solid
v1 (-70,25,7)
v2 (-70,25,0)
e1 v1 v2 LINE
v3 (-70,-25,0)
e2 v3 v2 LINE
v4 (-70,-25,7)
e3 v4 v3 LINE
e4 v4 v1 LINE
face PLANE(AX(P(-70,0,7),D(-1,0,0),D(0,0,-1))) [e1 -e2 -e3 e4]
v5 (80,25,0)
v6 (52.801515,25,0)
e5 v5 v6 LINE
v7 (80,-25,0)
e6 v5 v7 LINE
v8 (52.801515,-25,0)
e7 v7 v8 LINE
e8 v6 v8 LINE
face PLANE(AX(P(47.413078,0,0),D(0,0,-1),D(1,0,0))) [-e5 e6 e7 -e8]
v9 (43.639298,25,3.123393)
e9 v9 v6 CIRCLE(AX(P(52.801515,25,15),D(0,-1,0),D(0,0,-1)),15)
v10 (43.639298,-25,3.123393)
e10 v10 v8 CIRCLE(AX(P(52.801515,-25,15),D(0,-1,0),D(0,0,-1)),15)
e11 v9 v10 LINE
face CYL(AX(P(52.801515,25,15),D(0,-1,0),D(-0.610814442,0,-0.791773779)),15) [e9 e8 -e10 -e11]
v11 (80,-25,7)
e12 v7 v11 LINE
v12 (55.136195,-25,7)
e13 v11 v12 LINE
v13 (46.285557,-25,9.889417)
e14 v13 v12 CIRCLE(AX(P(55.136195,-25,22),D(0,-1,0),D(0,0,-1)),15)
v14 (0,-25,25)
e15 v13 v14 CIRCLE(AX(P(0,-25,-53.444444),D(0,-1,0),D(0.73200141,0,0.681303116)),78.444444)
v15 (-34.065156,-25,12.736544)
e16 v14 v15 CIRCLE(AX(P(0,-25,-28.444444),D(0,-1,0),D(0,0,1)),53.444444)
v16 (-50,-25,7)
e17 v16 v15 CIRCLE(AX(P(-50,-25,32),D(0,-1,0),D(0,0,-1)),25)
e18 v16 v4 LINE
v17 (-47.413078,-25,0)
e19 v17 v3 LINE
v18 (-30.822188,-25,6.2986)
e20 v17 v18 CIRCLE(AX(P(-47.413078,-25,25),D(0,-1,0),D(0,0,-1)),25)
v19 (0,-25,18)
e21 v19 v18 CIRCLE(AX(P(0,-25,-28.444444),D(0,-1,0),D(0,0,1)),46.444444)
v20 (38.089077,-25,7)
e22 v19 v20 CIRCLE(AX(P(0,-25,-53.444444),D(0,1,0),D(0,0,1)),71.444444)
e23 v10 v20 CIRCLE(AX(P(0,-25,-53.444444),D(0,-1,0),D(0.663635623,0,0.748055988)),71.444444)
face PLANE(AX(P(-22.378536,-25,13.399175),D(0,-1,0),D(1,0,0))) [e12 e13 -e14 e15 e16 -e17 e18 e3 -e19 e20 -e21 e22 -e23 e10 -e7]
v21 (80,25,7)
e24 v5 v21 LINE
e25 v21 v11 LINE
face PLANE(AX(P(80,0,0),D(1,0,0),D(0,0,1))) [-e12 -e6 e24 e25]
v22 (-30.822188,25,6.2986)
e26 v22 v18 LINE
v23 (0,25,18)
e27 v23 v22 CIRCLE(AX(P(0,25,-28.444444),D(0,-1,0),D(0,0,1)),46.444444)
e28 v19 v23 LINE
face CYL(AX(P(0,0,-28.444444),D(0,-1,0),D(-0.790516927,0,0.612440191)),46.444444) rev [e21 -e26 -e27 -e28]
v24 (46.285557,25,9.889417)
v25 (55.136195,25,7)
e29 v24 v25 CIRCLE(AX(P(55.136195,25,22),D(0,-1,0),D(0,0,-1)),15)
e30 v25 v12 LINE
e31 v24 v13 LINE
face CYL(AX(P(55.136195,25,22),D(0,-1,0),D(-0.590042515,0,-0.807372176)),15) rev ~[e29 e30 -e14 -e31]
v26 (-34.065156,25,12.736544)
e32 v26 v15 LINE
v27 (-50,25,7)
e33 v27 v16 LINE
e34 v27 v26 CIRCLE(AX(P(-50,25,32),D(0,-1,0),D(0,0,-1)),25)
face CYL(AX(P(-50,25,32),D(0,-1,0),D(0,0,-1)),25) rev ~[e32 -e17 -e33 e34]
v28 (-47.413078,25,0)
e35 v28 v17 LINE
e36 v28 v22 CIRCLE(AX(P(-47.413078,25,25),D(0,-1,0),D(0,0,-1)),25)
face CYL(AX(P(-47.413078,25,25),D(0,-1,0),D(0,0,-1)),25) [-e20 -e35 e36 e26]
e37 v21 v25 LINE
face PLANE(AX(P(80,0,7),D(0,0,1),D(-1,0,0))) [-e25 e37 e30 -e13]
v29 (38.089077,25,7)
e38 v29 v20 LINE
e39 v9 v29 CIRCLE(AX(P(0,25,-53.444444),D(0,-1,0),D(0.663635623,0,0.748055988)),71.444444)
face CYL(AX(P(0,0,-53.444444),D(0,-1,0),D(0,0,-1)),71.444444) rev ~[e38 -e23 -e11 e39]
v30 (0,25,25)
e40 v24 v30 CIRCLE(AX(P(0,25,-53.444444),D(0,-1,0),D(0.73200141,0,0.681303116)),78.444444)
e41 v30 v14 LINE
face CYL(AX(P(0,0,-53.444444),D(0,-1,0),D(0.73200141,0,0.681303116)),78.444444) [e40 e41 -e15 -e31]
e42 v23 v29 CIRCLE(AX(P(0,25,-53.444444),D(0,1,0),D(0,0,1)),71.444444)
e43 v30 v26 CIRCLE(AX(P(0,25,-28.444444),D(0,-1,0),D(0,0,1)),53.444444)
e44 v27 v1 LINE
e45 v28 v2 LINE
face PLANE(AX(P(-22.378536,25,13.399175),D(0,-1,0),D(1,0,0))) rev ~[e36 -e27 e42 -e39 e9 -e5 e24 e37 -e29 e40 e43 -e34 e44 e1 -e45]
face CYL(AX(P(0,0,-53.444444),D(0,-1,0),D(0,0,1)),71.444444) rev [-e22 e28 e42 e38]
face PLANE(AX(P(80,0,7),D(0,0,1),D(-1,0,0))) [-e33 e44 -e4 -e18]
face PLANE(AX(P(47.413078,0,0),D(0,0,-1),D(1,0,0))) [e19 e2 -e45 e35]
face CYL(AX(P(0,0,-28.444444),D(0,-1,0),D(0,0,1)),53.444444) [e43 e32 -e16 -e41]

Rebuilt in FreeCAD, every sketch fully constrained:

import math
import FreeCAD as App
import Part
import Sketcher

V = App.Vector
Q = App.Units.Quantity


def edges_at(feature, points):
    """Names of the edges that pass closest to the given points."""
    edges = feature.Shape.Edges
    near = lambda p: min(range(len(edges)), key=lambda i: edges[i].distToShape(Part.Vertex(*p))[0])
    return sorted({f"Edge{near(p) + 1}" for p in points})


def add_polygon(sketch, points):
    """Adds a closed chain of lines whose ends are joined by coincident constraints."""
    first, n = sketch.GeometryCount, len(points)
    for a, b in zip(points, points[1:] + points[:1]):
        sketch.addGeometry(Part.LineSegment(App.Vector(*a, 0), App.Vector(*b, 0)), False)
    for i in range(n):
        sketch.addConstraint(Sketcher.Constraint("Coincident", first + i, 2, first + (i + 1) % n, 1))

doc = App.newDocument("Part")
body = doc.addObject("PartDesign::Body", "Body")

sketch1 = body.newObject("Sketcher::SketchObject", "Sketch")
sketch1.AttachmentSupport = (doc.getObject("XZ_Plane"), [""])
sketch1.MapMode = "FlatFace"
add_polygon(sketch1, [(-70, 0), (80, 0), (80, 7), (-70, 7)])
sketch1.addConstraint([
    Sketcher.Constraint("Horizontal", 0),
    Sketcher.Constraint("Vertical", 1),
    Sketcher.Constraint("Horizontal", 2),
    Sketcher.Constraint("Vertical", 3),
    Sketcher.Constraint("PointOnObject", 0, 2, -1),
    Sketcher.Constraint("DistanceX", 0, 1, 0, 2, Q("150 mm")),
    Sketcher.Constraint("DistanceY", 1, 1, 1, 2, Q("7 mm")),
    Sketcher.Constraint("DistanceX", -1, 1, 0, 2, Q("80 mm")),
])
pad1 = body.newObject("PartDesign::Pad", "Pad")
pad1.Profile = sketch1
pad1.Length = 50
pad1.Midplane = True

sketch2 = body.newObject("Sketcher::SketchObject", "Sketch001")
sketch2.AttachmentSupport = (doc.getObject("XZ_Plane"), [""])
sketch2.MapMode = "FlatFace"
sketch2.addGeometry([
    Part.LineSegment(V(0, 18, 0), V(0, 25, 0)),
    Part.ArcOfCircle(Part.Circle(V(0, -28, 0), V(0, 0, 1), 53), math.radians(90), math.radians(148)),
    Part.LineSegment(V(-45, 0, 0), V(-37, 0, 0)),
    Part.ArcOfCircle(Part.Circle(V(0, -28, 0), V(0, 0, 1), 46), math.radians(90), math.radians(142)),
], False)
sketch2.addConstraint([
    Sketcher.Constraint("Coincident", 0, 2, 1, 1),
    Sketcher.Constraint("Coincident", 1, 2, 2, 1),
    Sketcher.Constraint("Coincident", 2, 2, 3, 2),
    Sketcher.Constraint("Coincident", 3, 1, 0, 1),
    Sketcher.Constraint("Vertical", 0),
    Sketcher.Constraint("Horizontal", 2),
    Sketcher.Constraint("Coincident", 3, 3, 1, 3),
    Sketcher.Constraint("PointOnObject", 1, 3, -2),
    Sketcher.Constraint("PointOnObject", 0, 2, -2),
    Sketcher.Constraint("PointOnObject", 1, 2, -1),
    Sketcher.Constraint("DistanceY", 0, 1, 0, 2, Q("7 mm")),
    Sketcher.Constraint("DistanceY", -1, 1, 0, 2, Q("25 mm")),
    Sketcher.Constraint("Radius", 1, Q("53.444444 mm")),
])
pad2 = body.newObject("PartDesign::Pad", "Pad001")
pad2.Profile = sketch2
pad2.Length = 50
pad2.Midplane = True

sketch3 = body.newObject("Sketcher::SketchObject", "Sketch002")
sketch3.AttachmentSupport = (doc.getObject("XZ_Plane"), [""])
sketch3.MapMode = "FlatFace"
sketch3.addGeometry([
    Part.LineSegment(V(47, 0, 0), V(57, 0, 0)),
    Part.ArcOfCircle(Part.Circle(V(0, -53, 0), V(0, 0, 1), 78), math.radians(43), math.radians(90)),
    Part.LineSegment(V(0, 25, 0), V(0, 18, 0)),
    Part.ArcOfCircle(Part.Circle(V(0, -53, 0), V(0, 0, 1), 71), math.radians(48), math.radians(90)),
], False)
sketch3.addConstraint([
    Sketcher.Constraint("Coincident", 0, 2, 1, 1),
    Sketcher.Constraint("Coincident", 1, 2, 2, 1),
    Sketcher.Constraint("Coincident", 2, 2, 3, 2),
    Sketcher.Constraint("Coincident", 3, 1, 0, 1),
    Sketcher.Constraint("Horizontal", 0),
    Sketcher.Constraint("Vertical", 2),
    Sketcher.Constraint("Coincident", 3, 3, 1, 3),
    Sketcher.Constraint("PointOnObject", 1, 3, -2),
    Sketcher.Constraint("PointOnObject", 0, 2, -1),
    Sketcher.Constraint("PointOnObject", 1, 2, -2),
    Sketcher.Constraint("DistanceY", 2, 2, 2, 1, Q("7 mm")),
    Sketcher.Constraint("DistanceY", -1, 1, 1, 2, Q("25 mm")),
    Sketcher.Constraint("Radius", 1, Q("78.444444 mm")),
])
pad3 = body.newObject("PartDesign::Pad", "Pad002")
pad3.Profile = sketch3
pad3.Length = 50
pad3.Midplane = True

sketch4 = body.newObject("Sketcher::SketchObject", "Sketch003")
sketch4.AttachmentSupport = (doc.getObject("XZ_Plane"), [""])
sketch4.MapMode = "FlatFace"
sketch4.addGeometry([
    Part.ArcOfCircle(Part.Circle(V(0, -28, 0), V(0, 0, 1), 46), math.radians(90), math.radians(142)),
    Part.ArcOfCircle(Part.Circle(V(0, -28, 0), V(0, 0, 1), 46), math.radians(142), math.radians(270)),
    Part.LineSegment(V(0, -75, 0), V(0, 18, 0)),
], False)
sketch4.addConstraint([
    Sketcher.Constraint("Tangent", 0, 2, 1, 1),
    Sketcher.Constraint("Coincident", 1, 2, 2, 1),
    Sketcher.Constraint("Coincident", 2, 2, 0, 1),
    Sketcher.Constraint("Vertical", 2),
    Sketcher.Constraint("Equal", 0, 1),
    Sketcher.Constraint("PointOnObject", 0, 3, -2),
    Sketcher.Constraint("PointOnObject", 0, 2, -1),
    Sketcher.Constraint("PointOnObject", 1, 2, -2),
    Sketcher.Constraint("DistanceY", -1, 1, 2, 2, Q("18 mm")),
    Sketcher.Constraint("Radius", 0, Q("46.444444 mm")),
])
pocket1 = body.newObject("PartDesign::Pocket", "Pocket")
pocket1.Profile = sketch4
pocket1.Length = 50
pocket1.Midplane = True

sketch5 = body.newObject("Sketcher::SketchObject", "Sketch004")
sketch5.AttachmentSupport = (doc.getObject("XZ_Plane"), [""])
sketch5.MapMode = "FlatFace"
sketch5.addGeometry([
    Part.ArcOfCircle(Part.Circle(V(0, -53, 0), V(0, 0, 1), 71), math.radians(-90), math.radians(48)),
    Part.ArcOfCircle(Part.Circle(V(0, -53, 0), V(0, 0, 1), 71), math.radians(48), math.radians(90)),
    Part.LineSegment(V(0, 18, 0), V(0, -125, 0)),
], False)
sketch5.addConstraint([
    Sketcher.Constraint("Tangent", 0, 2, 1, 1),
    Sketcher.Constraint("Coincident", 1, 2, 2, 1),
    Sketcher.Constraint("Coincident", 2, 2, 0, 1),
    Sketcher.Constraint("Vertical", 2),
    Sketcher.Constraint("Equal", 0, 1),
    Sketcher.Constraint("PointOnObject", 0, 3, -2),
    Sketcher.Constraint("PointOnObject", 0, 2, -1),
    Sketcher.Constraint("PointOnObject", 1, 2, -2),
    Sketcher.Constraint("DistanceY", -1, 1, 1, 2, Q("18 mm")),
    Sketcher.Constraint("Radius", 0, Q("71.444444 mm")),
])
pocket2 = body.newObject("PartDesign::Pocket", "Pocket001")
pocket2.Profile = sketch5
pocket2.Length = 50
pocket2.Midplane = True
doc.recompute()

fillet = body.newObject("PartDesign::Fillet", "Fillet")
fillet.Base = (pocket2, edges_at(pocket2, [(-40, 0, 7), (-36.715, 0, 0)]))
fillet.Radius = 25
doc.recompute()

fillet2 = body.newObject("PartDesign::Fillet", "Fillet001")
fillet2.Base = (fillet, edges_at(fillet, [(50, 0, 7), (47.413, 0, 0)]))
fillet2.Radius = 15

doc.recompute()
